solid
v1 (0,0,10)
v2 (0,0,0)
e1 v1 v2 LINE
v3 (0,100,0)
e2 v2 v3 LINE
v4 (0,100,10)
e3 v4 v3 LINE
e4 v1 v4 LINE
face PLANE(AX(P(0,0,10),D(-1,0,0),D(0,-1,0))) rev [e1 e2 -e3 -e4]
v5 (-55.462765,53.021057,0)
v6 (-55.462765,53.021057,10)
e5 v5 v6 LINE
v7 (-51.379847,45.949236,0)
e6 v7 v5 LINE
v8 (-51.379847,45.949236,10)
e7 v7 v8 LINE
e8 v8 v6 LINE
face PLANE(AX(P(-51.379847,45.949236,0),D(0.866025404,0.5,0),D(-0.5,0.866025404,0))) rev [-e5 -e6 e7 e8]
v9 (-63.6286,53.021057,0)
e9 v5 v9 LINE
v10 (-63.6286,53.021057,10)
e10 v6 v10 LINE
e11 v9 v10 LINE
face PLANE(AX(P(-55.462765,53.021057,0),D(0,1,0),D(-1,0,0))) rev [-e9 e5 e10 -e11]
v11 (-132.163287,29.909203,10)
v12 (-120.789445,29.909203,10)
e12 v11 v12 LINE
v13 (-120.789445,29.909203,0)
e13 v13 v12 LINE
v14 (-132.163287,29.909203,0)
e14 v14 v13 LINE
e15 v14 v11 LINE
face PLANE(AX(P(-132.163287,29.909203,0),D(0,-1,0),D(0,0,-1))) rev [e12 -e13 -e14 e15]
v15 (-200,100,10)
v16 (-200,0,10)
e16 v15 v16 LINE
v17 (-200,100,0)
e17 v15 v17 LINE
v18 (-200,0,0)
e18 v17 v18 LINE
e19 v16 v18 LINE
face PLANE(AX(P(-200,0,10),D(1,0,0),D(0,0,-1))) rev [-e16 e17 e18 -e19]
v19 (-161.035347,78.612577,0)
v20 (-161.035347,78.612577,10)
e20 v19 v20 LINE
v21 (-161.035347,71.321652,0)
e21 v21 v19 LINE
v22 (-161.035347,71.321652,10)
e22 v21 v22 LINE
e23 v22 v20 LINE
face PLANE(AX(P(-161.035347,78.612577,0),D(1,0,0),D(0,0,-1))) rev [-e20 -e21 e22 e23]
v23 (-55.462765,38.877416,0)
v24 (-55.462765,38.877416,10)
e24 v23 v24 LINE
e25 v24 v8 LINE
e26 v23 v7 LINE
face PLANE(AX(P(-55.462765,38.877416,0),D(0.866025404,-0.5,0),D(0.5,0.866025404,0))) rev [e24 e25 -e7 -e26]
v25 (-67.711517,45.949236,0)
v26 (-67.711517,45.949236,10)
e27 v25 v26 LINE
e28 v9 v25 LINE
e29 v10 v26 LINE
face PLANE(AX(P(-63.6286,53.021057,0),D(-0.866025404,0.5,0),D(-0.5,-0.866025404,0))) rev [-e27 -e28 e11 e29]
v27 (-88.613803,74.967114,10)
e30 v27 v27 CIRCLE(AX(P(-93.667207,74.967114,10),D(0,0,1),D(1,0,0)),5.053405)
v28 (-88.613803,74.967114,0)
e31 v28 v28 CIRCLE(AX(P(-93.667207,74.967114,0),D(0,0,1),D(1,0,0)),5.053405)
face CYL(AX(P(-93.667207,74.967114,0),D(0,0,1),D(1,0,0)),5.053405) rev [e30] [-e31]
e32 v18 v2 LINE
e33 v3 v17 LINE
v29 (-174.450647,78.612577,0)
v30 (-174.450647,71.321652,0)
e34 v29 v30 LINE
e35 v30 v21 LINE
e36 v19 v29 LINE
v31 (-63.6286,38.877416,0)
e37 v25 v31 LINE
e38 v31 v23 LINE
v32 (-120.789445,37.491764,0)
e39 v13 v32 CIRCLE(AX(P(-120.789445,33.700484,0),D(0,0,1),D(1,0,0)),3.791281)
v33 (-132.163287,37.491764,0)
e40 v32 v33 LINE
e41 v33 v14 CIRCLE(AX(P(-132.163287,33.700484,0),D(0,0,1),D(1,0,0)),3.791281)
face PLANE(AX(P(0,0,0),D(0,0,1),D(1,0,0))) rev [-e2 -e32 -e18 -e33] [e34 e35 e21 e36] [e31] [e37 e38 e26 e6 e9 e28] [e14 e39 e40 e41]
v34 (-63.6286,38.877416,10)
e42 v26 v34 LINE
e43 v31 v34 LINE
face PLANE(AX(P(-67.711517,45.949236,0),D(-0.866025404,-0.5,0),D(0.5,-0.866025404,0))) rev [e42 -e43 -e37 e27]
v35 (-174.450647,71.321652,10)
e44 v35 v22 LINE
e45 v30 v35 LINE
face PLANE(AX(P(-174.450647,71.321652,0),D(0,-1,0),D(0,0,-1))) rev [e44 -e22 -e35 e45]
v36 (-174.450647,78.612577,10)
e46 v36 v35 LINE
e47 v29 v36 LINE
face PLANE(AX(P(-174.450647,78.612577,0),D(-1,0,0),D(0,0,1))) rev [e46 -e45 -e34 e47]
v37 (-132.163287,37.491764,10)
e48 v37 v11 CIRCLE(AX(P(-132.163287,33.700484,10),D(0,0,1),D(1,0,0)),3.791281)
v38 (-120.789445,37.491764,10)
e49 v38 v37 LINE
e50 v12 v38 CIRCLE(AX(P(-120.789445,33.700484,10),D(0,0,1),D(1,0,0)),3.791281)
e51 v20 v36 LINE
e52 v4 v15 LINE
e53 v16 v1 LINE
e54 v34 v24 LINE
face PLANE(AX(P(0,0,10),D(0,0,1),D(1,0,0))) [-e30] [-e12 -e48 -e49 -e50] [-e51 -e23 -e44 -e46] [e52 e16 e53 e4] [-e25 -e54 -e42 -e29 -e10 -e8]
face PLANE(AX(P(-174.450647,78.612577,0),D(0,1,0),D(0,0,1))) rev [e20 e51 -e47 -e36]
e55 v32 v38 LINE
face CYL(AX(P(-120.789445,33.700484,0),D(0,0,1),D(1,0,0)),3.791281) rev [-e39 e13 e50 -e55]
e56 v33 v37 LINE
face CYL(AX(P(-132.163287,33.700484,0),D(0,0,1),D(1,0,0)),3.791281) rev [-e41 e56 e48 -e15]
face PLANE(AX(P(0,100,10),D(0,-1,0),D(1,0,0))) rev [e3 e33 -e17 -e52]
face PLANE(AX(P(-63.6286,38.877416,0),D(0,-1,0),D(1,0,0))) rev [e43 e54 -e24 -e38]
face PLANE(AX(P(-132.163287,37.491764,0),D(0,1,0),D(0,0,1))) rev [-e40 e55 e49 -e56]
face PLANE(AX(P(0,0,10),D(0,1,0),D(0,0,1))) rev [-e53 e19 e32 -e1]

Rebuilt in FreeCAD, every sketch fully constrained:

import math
import FreeCAD as App
import Part
import Sketcher
from FreeCAD import Vector
Q = App.Units.Quantity


def add_polygon(sketch, points):
    """Adds a closed chain of lines whose ends are joined by coincident constraints."""
    first, n = sketch.GeometryCount, len(points)
    for a, b in zip(points, points[1:] + points[:1]):
        sketch.addGeometry(Part.LineSegment(App.Vector(*a, 0), App.Vector(*b, 0)), False)
    for i in range(n):
        sketch.addConstraint(Sketcher.Constraint("Coincident", first + i, 2, first + (i + 1) % n, 1))

doc = App.newDocument("Part")
body = doc.addObject("PartDesign::Body", "Body")

sketch1 = body.newObject("Sketcher::SketchObject", "Sketch")
sketch1.AttachmentSupport = (doc.getObject("XY_Plane"), [""])
sketch1.MapMode = "FlatFace"
add_polygon(sketch1, [(-200, 100), (-200, 0), (0, 0), (0, 100)])
sketch1.addConstraint(Sketcher.Constraint("Vertical", 0))
sketch1.addConstraint(Sketcher.Constraint("Horizontal", 1))
sketch1.addConstraint(Sketcher.Constraint("Vertical", 2))
sketch1.addConstraint(Sketcher.Constraint("Horizontal", 3))
sketch1.addConstraint(Sketcher.Constraint("Coincident", 1, 2, -1, 1))
sketch1.addConstraint(Sketcher.Constraint("DistanceX", 1, 1, 1, 2, Q("200 mm")))
sketch1.addConstraint(Sketcher.Constraint("DistanceY", 0, 2, 0, 1, Q("100 mm")))
pad1 = body.newObject("PartDesign::Pad", "Pad")
pad1.Profile = sketch1
pad1.Length = 10

sketch2 = body.newObject("Sketcher::SketchObject", "Sketch001")
sketch2.AttachmentSupport = (doc.getObject("XY_Plane"), [""])
sketch2.MapMode = "FlatFace"
sketch2.AttachmentOffset = App.Placement(Vector(0, 0, 10), App.Rotation())
sketch2.addGeometry(Part.Circle(Vector(-93.7, 75, 0), Vector(0, 0, 1), 5.1), False)
add_polygon(sketch2, [(-174.5, 78.6), (-174.5, 71.3), (-161, 71.3), (-161, 78.6)])
sketch2.addGeometry(Part.LineSegment(Vector(-120.8, 37.5, 0), Vector(-132.2, 37.5, 0)), False)
sketch2.addGeometry(Part.ArcOfCircle(Part.Circle(Vector(-132.2, 33.7, 0), Vector(0, 0, 1), 3.8), math.radians(90), math.radians(270)), False)
sketch2.addGeometry(Part.LineSegment(Vector(-132.2, 29.9, 0), Vector(-120.8, 29.9, 0)), False)
sketch2.addGeometry(Part.ArcOfCircle(Part.Circle(Vector(-120.8, 33.7, 0), Vector(0, 0, 1), 3.8), math.radians(-90), math.radians(90)), False)
add_polygon(sketch2, [(-51.4, 45.9), (-55.5, 53), (-63.6, 53), (-67.7, 45.9), (-63.6, 38.9), (-55.5, 38.9)])
sketch2.addConstraint(Sketcher.Constraint("Tangent", 5, 2, 6, 1))
sketch2.addConstraint(Sketcher.Constraint("Tangent", 6, 2, 7, 1))
sketch2.addConstraint(Sketcher.Constraint("Tangent", 7, 2, 8, 1))
sketch2.addConstraint(Sketcher.Constraint("Tangent", 8, 2, 5, 1))
sketch2.addConstraint(Sketcher.Constraint("Vertical", 1))
sketch2.addConstraint(Sketcher.Constraint("Horizontal", 2))
sketch2.addConstraint(Sketcher.Constraint("Vertical", 3))
sketch2.addConstraint(Sketcher.Constraint("Horizontal", 4))
sketch2.addConstraint(Sketcher.Constraint("Horizontal", 5))
sketch2.addConstraint(Sketcher.Constraint("Horizontal", 7))
sketch2.addConstraint(Sketcher.Constraint("Horizontal", 10))
sketch2.addConstraint(Sketcher.Constraint("Horizontal", 13))
sketch2.addConstraint(Sketcher.Constraint("Parallel", 9, 12))
sketch2.addConstraint(Sketcher.Constraint("Parallel", 11, 14))
sketch2.addConstraint(Sketcher.Constraint("Horizontal", 11, 2, 14, 2))
sketch2.addConstraint(Sketcher.Constraint("Vertical", 10, 2, 12, 2))
sketch2.addConstraint(Sketcher.Constraint("Vertical", 9, 2, 13, 2))
sketch2.addConstraint(Sketcher.Constraint("Angle", 9, Q("120 deg")))
sketch2.addConstraint(Sketcher.Constraint("Diameter", 0, Q("10.106809 mm")))
sketch2.addConstraint(Sketcher.Constraint("Radius", 6, Q("3.791281 mm")))
sketch2.addConstraint(Sketcher.Constraint("DistanceX", 2, 1, 2, 2, Q("13.4153 mm")))
sketch2.addConstraint(Sketcher.Constraint("DistanceX", 5, 2, 5, 1, Q("11.373842 mm")))
sketch2.addConstraint(Sketcher.Constraint("DistanceX", 10, 2, -1, 1, Q("63.6286 mm")))
sketch2.addConstraint(Sketcher.Constraint("DistanceX", 1, 2, 8, 3, Q("53.661202 mm")))
sketch2.addConstraint(Sketcher.Constraint("DistanceY", 12, 2, 0, 3, Q("36.089699 mm")))
sketch2.addConstraint(Sketcher.Constraint("DistanceX", 10, 2, 10, 1, Q("8.165835 mm")))
sketch2.addConstraint(Sketcher.Constraint("DistanceY", 1, 2, 1, 1, Q("7.290924 mm")))
sketch2.addConstraint(Sketcher.Constraint("DistanceX", 6, 3, 0, 3, Q("38.49608 mm")))
sketch2.addConstraint(Sketcher.Constraint("DistanceY", 6, 3, 0, 3, Q("41.266631 mm")))
sketch2.addConstraint(Sketcher.Constraint("DistanceY", 6, 3, 1, 2, Q("37.621169 mm")))
sketch2.addConstraint(Sketcher.Constraint("DistanceX", 8, 2, 9, 2, Q("65.326681 mm")))
sketch2.addConstraint(Sketcher.Constraint("DistanceY", 11, 2, 10, 2, Q("7.071821 mm")))
sketch2.addConstraint(Sketcher.Constraint("DistanceY", -1, 1, 0, 3, Q("74.967114 mm")))
pocket1 = body.newObject("PartDesign::Pocket", "Pocket")
pocket1.Profile = sketch2
pocket1.Length = 10

doc.recompute()
